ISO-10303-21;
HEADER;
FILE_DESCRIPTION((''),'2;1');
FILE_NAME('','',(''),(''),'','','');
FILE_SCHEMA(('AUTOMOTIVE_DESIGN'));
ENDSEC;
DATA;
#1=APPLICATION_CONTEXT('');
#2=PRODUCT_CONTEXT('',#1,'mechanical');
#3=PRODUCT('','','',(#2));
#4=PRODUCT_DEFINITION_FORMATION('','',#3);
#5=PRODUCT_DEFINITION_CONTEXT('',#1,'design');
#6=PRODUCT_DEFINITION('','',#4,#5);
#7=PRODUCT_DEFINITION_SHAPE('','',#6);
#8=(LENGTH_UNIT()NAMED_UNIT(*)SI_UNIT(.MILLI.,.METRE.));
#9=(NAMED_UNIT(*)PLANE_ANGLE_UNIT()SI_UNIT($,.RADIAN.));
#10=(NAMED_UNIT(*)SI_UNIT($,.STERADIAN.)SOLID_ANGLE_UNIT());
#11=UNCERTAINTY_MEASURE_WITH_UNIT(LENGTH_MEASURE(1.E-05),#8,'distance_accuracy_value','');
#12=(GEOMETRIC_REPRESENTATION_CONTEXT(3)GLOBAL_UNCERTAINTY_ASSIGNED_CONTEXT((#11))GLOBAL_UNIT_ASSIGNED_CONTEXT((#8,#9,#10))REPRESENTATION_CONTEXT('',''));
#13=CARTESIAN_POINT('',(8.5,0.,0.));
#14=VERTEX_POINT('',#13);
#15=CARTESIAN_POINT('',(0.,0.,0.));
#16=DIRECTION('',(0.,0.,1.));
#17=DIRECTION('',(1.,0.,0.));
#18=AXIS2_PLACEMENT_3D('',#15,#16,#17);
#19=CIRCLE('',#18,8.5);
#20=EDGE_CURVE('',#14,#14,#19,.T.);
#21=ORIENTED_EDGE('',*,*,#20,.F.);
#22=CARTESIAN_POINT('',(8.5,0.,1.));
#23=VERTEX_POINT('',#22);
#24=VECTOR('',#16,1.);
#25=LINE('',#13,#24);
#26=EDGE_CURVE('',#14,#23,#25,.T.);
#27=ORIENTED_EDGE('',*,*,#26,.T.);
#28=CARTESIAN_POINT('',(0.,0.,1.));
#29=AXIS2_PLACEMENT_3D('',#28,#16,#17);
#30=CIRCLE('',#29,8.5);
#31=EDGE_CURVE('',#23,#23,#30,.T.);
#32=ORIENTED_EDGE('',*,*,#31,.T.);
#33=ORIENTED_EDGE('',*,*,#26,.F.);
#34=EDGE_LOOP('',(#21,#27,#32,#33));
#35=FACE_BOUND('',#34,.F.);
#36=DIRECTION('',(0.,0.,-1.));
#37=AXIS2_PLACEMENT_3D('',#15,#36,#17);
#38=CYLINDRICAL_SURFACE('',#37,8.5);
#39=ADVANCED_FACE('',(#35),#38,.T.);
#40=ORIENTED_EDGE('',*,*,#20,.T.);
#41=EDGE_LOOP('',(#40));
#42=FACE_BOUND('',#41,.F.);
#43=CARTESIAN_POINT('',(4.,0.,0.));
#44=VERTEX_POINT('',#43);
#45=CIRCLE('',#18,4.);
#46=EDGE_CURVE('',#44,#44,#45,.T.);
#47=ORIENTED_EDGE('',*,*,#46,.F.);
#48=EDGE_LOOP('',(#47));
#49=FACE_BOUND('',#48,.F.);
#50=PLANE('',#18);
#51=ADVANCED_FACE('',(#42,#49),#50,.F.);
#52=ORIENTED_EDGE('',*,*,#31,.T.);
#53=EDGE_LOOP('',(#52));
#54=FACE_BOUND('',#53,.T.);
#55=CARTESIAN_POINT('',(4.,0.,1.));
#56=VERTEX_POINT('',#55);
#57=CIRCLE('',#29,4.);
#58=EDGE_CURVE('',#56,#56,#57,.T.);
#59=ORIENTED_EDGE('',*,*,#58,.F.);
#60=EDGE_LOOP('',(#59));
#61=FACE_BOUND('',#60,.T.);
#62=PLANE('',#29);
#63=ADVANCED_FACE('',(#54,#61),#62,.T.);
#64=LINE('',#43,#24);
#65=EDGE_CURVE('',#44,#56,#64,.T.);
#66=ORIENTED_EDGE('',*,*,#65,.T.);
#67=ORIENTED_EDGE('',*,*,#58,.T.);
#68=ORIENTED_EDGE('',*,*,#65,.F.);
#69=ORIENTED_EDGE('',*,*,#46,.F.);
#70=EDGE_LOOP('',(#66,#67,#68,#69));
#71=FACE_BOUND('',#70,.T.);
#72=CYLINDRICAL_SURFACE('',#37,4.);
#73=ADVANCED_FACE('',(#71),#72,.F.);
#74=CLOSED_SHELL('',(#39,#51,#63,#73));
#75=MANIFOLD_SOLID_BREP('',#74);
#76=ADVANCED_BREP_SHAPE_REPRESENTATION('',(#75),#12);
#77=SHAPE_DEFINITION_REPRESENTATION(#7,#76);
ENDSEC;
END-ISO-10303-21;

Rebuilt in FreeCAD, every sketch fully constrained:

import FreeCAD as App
import Part
import Sketcher
from FreeCAD import Vector

doc = App.newDocument("Part")
body = doc.addObject("PartDesign::Body", "Body")

# Sketch on XY plane
sketch1 = doc.addObject("Sketcher::SketchObject", "Sketch")
body.addObject(sketch1)
sketch1.AttachmentSupport = (doc.XY_Plane, [""])
sketch1.MapMode = "FlatFace"
sketch1.addGeometry(Part.Circle(Vector(0, 0, 0), Vector(0, 0, 1), 8.5), False)
sketch1.addGeometry(Part.Circle(Vector(0, 0, 0), Vector(0, 0, 1), 4), False)
sketch1.addConstraint(Sketcher.Constraint("Coincident", 0, 3, -1, 1))
sketch1.addConstraint(Sketcher.Constraint("Coincident", 1, 3, -1, 1))
sketch1.addConstraint(Sketcher.Constraint("Diameter", 0, 17.0))
sketch1.addConstraint(Sketcher.Constraint("Diameter", 1, 8.0))
pad1 = doc.addObject("PartDesign::Pad", "Pad")
body.addObject(pad1)
pad1.Profile = sketch1
pad1.Length = 1

doc.recompute()
